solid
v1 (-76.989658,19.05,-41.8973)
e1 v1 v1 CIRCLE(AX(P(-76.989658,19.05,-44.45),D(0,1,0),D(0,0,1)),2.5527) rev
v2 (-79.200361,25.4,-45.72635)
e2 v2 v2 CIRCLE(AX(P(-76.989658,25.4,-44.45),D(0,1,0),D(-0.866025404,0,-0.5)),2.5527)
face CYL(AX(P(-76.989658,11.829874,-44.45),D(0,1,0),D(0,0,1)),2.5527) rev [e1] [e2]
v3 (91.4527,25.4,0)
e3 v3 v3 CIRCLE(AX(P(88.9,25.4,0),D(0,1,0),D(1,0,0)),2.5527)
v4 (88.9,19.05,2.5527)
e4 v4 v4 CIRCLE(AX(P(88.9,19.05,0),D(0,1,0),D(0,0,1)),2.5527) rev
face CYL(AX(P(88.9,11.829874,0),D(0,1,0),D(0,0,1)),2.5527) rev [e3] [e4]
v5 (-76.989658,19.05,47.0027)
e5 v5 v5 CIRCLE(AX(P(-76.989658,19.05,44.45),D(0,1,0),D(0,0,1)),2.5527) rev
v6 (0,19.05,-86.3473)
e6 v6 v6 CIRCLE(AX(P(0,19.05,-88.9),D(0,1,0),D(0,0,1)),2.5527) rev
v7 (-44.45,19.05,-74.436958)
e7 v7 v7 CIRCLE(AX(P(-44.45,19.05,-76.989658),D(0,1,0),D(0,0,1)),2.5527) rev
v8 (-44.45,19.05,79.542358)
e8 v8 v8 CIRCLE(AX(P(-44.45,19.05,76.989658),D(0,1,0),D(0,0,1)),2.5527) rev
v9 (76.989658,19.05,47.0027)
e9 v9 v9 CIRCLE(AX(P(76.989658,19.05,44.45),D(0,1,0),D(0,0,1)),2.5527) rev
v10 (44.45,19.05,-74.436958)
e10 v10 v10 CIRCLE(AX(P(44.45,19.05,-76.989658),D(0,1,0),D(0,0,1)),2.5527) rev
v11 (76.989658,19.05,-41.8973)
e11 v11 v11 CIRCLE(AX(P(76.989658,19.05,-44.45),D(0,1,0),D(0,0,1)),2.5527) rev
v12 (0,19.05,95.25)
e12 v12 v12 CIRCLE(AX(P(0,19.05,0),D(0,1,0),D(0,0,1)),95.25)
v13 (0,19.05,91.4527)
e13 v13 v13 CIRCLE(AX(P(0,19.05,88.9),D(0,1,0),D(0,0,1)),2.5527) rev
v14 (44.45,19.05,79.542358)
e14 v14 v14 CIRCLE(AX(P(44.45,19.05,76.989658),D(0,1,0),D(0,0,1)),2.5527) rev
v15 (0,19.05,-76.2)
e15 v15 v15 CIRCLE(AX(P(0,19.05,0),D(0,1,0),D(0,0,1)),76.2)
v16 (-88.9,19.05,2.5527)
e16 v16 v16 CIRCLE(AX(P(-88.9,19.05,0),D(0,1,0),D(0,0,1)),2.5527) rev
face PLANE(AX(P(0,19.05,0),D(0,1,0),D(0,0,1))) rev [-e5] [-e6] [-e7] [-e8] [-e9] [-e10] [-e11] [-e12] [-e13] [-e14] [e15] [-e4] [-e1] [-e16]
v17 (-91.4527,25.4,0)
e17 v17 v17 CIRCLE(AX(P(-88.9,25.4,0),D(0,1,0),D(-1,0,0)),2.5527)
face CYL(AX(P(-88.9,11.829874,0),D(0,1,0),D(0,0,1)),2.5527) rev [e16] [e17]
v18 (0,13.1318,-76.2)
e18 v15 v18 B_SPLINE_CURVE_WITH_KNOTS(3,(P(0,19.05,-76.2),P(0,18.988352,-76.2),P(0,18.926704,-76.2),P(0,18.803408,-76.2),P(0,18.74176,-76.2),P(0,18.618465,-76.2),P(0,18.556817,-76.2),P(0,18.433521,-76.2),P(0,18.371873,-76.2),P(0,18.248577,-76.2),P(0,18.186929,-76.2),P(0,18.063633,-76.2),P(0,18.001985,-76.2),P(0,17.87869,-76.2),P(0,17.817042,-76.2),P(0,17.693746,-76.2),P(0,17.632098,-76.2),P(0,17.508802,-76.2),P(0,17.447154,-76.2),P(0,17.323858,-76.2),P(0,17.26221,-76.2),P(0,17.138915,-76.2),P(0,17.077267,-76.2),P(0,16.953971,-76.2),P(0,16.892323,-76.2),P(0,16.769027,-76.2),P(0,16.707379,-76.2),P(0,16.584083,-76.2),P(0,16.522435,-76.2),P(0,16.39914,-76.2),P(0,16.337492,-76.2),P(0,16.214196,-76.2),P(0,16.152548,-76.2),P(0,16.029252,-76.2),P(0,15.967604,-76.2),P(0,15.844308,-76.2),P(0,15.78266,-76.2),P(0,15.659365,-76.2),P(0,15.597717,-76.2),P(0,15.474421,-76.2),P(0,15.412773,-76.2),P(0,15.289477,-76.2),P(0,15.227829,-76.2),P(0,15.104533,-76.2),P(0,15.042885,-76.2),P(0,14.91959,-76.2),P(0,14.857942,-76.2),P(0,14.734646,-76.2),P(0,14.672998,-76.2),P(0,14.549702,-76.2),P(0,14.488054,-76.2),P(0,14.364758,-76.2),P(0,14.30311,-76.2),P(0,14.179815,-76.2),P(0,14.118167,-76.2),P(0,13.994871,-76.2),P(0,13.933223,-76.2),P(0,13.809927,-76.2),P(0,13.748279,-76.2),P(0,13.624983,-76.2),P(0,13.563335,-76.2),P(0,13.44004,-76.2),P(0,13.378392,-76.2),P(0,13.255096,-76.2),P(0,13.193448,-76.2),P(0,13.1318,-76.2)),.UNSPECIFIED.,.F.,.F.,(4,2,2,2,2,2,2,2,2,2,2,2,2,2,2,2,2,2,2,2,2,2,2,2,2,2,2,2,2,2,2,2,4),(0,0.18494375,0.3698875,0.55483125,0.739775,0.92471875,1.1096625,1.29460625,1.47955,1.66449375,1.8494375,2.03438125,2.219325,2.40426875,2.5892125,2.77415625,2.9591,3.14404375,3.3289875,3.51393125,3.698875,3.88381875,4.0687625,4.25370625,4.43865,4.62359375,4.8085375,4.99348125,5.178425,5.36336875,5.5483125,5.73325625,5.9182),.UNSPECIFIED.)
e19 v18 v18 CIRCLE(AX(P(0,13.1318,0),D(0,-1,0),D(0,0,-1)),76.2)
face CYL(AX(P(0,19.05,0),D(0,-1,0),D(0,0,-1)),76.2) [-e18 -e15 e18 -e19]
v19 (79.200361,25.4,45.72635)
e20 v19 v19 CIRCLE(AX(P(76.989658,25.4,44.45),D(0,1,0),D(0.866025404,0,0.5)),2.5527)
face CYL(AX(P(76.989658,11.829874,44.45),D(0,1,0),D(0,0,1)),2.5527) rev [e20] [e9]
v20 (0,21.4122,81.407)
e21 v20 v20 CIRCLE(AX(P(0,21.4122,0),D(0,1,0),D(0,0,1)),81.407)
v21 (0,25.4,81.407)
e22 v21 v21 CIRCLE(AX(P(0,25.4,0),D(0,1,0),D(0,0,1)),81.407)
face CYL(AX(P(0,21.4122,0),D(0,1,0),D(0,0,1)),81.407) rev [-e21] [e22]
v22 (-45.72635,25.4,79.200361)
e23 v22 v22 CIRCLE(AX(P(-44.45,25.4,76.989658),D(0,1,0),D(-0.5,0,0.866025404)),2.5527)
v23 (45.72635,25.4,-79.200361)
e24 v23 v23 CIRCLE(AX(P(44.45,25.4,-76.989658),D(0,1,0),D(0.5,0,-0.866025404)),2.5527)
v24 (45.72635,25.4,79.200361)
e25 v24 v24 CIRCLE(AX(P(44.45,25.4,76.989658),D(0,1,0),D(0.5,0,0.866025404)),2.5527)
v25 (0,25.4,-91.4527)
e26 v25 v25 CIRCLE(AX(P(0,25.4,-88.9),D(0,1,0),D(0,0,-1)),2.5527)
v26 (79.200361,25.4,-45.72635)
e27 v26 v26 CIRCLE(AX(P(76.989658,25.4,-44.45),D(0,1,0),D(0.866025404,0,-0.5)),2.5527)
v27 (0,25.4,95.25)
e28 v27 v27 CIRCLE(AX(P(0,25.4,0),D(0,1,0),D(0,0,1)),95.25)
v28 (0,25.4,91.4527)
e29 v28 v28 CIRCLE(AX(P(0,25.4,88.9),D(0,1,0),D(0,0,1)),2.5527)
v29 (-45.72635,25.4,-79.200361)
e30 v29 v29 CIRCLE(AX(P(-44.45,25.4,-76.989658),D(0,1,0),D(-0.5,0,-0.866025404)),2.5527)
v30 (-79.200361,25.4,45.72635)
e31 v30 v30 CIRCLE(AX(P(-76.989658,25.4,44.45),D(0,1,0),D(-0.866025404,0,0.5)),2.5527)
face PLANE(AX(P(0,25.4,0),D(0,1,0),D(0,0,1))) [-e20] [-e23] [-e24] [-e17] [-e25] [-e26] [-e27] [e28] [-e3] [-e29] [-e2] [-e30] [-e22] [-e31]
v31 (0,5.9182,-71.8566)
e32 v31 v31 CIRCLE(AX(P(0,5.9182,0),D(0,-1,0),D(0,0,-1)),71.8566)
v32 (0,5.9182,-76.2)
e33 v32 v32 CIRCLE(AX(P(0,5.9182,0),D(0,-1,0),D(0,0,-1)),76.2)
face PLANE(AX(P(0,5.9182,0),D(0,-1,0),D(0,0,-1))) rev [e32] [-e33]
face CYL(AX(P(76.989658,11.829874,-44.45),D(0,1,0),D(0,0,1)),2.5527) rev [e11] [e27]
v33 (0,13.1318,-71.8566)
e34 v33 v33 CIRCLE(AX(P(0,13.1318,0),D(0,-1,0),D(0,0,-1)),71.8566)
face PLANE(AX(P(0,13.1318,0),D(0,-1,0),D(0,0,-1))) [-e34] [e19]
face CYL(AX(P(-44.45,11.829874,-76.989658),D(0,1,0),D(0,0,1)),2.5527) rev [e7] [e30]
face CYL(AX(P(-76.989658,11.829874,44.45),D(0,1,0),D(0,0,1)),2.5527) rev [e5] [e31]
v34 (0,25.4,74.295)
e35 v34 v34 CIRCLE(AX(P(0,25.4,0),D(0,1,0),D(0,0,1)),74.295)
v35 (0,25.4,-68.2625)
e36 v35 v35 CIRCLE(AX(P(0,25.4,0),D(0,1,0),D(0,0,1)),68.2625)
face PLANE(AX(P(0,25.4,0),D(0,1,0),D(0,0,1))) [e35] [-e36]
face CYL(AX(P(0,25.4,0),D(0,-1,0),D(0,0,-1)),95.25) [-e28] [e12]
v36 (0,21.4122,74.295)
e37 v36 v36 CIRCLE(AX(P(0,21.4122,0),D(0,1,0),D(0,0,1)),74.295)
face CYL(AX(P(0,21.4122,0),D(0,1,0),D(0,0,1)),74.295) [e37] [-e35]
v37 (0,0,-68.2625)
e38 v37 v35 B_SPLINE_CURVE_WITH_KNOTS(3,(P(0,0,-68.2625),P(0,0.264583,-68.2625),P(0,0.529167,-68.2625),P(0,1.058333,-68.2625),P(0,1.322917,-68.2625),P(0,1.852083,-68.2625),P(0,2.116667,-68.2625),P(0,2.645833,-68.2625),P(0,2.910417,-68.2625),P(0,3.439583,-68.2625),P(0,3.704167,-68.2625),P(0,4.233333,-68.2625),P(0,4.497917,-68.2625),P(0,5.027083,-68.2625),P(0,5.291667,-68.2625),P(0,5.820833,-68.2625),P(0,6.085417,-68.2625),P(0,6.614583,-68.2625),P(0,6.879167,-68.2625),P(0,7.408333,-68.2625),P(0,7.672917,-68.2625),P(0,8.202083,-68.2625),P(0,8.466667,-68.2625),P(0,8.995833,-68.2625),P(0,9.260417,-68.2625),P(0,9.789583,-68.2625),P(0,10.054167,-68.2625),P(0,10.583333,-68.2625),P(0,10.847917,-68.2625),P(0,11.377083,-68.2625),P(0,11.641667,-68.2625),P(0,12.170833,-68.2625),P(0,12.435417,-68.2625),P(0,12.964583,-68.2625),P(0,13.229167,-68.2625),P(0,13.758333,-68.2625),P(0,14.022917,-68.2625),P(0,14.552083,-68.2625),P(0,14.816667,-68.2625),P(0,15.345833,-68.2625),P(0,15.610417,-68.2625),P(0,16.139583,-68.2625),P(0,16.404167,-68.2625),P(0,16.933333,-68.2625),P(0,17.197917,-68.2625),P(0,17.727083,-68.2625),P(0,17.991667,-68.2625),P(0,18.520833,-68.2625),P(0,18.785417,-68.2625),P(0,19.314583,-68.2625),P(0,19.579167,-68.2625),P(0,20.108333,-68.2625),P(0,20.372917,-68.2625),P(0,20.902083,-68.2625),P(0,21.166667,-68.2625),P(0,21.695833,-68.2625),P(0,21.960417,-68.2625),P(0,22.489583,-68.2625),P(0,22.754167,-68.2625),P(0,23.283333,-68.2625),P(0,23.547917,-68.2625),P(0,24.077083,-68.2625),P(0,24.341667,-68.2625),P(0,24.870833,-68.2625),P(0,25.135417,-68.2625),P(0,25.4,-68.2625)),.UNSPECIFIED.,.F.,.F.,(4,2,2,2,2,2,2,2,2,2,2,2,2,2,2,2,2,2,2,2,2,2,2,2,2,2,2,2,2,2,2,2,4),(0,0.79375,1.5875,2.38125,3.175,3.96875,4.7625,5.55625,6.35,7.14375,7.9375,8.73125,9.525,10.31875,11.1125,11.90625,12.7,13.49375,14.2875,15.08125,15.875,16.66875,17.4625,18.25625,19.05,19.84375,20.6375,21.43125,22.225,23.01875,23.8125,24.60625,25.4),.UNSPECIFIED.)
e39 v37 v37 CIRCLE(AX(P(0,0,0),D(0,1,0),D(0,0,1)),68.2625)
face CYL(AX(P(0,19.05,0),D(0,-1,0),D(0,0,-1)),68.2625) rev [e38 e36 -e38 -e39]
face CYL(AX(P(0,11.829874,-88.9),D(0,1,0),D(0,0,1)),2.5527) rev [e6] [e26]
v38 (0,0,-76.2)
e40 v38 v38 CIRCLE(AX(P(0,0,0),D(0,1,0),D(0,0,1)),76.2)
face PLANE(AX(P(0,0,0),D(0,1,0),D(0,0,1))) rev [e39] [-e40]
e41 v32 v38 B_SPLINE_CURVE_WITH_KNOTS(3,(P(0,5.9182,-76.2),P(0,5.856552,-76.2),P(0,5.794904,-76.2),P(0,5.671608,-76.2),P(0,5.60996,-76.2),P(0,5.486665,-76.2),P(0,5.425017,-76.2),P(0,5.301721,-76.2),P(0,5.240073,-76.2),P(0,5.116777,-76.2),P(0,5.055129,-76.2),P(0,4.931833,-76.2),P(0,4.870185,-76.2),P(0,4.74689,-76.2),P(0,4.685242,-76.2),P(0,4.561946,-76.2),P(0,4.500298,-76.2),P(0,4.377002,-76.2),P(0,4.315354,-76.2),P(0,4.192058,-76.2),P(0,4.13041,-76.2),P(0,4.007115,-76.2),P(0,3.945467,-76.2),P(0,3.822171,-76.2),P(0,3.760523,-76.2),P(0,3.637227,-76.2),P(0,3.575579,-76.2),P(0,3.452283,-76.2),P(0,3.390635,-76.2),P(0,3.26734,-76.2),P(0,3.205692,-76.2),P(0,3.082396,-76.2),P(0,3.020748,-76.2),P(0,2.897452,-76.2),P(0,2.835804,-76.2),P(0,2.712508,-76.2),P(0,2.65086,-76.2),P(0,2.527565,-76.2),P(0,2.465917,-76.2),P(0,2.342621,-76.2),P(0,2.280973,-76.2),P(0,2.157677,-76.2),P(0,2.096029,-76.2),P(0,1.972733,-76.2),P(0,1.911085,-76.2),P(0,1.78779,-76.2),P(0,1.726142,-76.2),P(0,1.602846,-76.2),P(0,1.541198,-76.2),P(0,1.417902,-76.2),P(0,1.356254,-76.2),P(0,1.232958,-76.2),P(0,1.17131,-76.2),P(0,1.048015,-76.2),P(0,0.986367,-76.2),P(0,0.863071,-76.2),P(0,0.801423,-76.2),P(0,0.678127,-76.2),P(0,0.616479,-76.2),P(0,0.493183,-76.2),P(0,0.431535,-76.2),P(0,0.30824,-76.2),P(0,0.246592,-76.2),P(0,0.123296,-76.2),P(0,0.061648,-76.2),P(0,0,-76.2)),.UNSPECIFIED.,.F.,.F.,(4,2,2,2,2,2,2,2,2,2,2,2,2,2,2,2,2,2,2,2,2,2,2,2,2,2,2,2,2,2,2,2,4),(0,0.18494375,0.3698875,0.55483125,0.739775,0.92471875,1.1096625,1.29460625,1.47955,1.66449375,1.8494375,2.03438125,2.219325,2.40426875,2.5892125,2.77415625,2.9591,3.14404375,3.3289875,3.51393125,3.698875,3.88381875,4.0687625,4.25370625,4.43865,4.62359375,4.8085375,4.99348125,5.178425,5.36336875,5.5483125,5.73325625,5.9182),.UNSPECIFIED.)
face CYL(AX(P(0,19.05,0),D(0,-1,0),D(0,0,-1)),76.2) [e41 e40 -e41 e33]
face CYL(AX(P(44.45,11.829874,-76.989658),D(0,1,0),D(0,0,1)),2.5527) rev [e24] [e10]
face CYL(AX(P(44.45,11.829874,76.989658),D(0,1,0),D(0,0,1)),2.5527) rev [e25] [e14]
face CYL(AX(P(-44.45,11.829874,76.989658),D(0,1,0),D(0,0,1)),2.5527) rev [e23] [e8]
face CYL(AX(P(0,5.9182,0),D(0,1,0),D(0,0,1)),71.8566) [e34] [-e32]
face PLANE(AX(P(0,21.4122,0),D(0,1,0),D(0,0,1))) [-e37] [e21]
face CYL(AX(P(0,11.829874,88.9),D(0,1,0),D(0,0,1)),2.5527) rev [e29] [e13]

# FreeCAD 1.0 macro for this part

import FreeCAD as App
import Part
import Sketcher
Q = App.Units.Quantity

doc = App.newDocument("Part")
params = doc.addObject("Spreadsheet::Sheet", "Params")
for row, (alias, value) in enumerate([
    ("sketch1_diameter", "6 in"),
    ("sketch1_diameter2", "5.375 in"),
    ("pad1_length", "0.75 in"),
    ("sketch2_diameter", "7.5 in"),
    ("sketch2_diameter2", "5.375 in"),
    ("pad2_length", "0.25 in"),
    ("sketch3_diameter", "6.41 in"),
    ("sketch3_diameter2", "5.85 in"),
    ("pocket1_length", "0.157 in"),
    ("sketch4_diameter", "0.201 in"),
    ("pocket2_length", "0.25 in"),
    ("sketch5_diameter", "6 in"),
    ("sketch5_diameter2", "5.658 in"),
    ("pocket3_length", "0.142 in"),
    ("pocket3_length2", "0.142 in"),
], start=1):
    params.set(f"A{row}", alias)
    params.set(f"B{row}", "=" + value)
    params.setAlias(f"B{row}", alias)

body = doc.addObject("PartDesign::Body", "Body")

# Sketch on XZ plane
sketch1 = body.newObject("Sketcher::SketchObject", "Sketch")
sketch1.AttachmentSupport = (doc.getObject("XZ_Plane"), [""])
sketch1.MapMode = "FlatFace"
sketch1.addGeometry([
    Part.Circle(App.Vector(0, 0, 0), App.Vector(0, 0, 1), 76),
    Part.Circle(App.Vector(0, 0, 0), App.Vector(0, 0, 1), 68),
], False)
sketch1.addConstraint([
    Sketcher.Constraint("Coincident", 0, 3, -1, 1),
    Sketcher.Constraint("Coincident", 1, 3, -1, 1),
    Sketcher.Constraint("Diameter", 0, Q("6 in")),
    Sketcher.Constraint("Diameter", 1, Q("5.375 in")),
])
sketch1.setExpression("Constraints[2]", "Params.sketch1_diameter")
sketch1.setExpression("Constraints[3]", "Params.sketch1_diameter2")
pad1 = body.newObject("PartDesign::Pad", "Pad")
pad1.Profile = sketch1
pad1.setExpression("Length", "Params.pad1_length")
pad1.Reversed = True

# Sketch on XZ plane
sketch2 = body.newObject("Sketcher::SketchObject", "Sketch001")
sketch2.AttachmentSupport = (doc.getObject("XZ_Plane"), [""])
sketch2.MapMode = "FlatFace"
sketch2.AttachmentOffset = App.Placement(App.Vector(0, 0, -0.75 * 25.4), App.Rotation())
sketch2.addGeometry([
    Part.Circle(App.Vector(0, 0, 0), App.Vector(0, 0, 1), 95),
    Part.Circle(App.Vector(0, 0, 0), App.Vector(0, 0, 1), 68),
], False)
sketch2.addConstraint([
    Sketcher.Constraint("Coincident", 0, 3, -1, 1),
    Sketcher.Constraint("Coincident", 1, 3, -1, 1),
    Sketcher.Constraint("Diameter", 0, Q("7.5 in")),
    Sketcher.Constraint("Diameter", 1, Q("5.375 in")),
])
sketch2.setExpression("Constraints[2]", "Params.sketch2_diameter")
sketch2.setExpression("Constraints[3]", "Params.sketch2_diameter2")
pad2 = body.newObject("PartDesign::Pad", "Pad001")
pad2.Profile = sketch2
pad2.setExpression("Length", "Params.pad2_length")
pad2.Reversed = True

# Sketch on XZ plane
sketch3 = body.newObject("Sketcher::SketchObject", "Sketch002")
sketch3.AttachmentSupport = (doc.getObject("XZ_Plane"), [""])
sketch3.MapMode = "FlatFace"
sketch3.AttachmentOffset = App.Placement(App.Vector(0, 0, -1 * 25.4), App.Rotation())
sketch3.addGeometry([
    Part.Circle(App.Vector(0, 0, 0), App.Vector(0, 0, 1), 81),
    Part.Circle(App.Vector(0, 0, 0), App.Vector(0, 0, 1), 74),
], False)
sketch3.addConstraint([
    Sketcher.Constraint("Coincident", 0, 3, -1, 1),
    Sketcher.Constraint("Coincident", 1, 3, -1, 1),
    Sketcher.Constraint("Diameter", 0, Q("6.41 in")),
    Sketcher.Constraint("Diameter", 1, Q("5.85 in")),
])
sketch3.setExpression("Constraints[2]", "Params.sketch3_diameter")
sketch3.setExpression("Constraints[3]", "Params.sketch3_diameter2")
pocket1 = body.newObject("PartDesign::Pocket", "Pocket")
pocket1.Profile = sketch3
pocket1.setExpression("Length", "Params.pocket1_length")
pocket1.Reversed = True

# Sketch on XZ plane
sketch4 = body.newObject("Sketcher::SketchObject", "Sketch003")
sketch4.AttachmentSupport = (doc.getObject("XZ_Plane"), [""])
sketch4.MapMode = "FlatFace"
sketch4.AttachmentOffset = App.Placement(App.Vector(0, 0, -1 * 25.4), App.Rotation())
sketch4.addGeometry(Part.Circle(App.Vector(0, 88.9, 0), App.Vector(0, 0, 1), 2.6), False)
sketch4.addConstraint([
    Sketcher.Constraint("PointOnObject", 0, 3, -2),
    Sketcher.Constraint("Diameter", 0, Q("0.201 in")),
    Sketcher.Constraint("DistanceY", -1, 1, 0, 3, Q("3.5 in")),
])
sketch4.setExpression("Constraints[1]", "Params.sketch4_diameter")
pocket2 = body.newObject("PartDesign::Pocket", "Pocket001")
pocket2.Profile = sketch4
pocket2.setExpression("Length", "Params.pocket2_length")
pocket2.Reversed = True
doc.recompute()

polarpattern = body.newObject("PartDesign::PolarPattern", "PolarPattern")
polarpattern.Originals = [pocket2]
polarpattern.Axis = (doc.getObject("Y_Axis"), [""])
polarpattern.Angle = 360
polarpattern.Occurrences = 12
body.Tip = polarpattern

# Sketch on XZ plane
sketch5 = body.newObject("Sketcher::SketchObject", "Sketch004")
sketch5.AttachmentSupport = (doc.getObject("XZ_Plane"), [""])
sketch5.MapMode = "FlatFace"
sketch5.AttachmentOffset = App.Placement(App.Vector(0, 0, -0.375 * 25.4), App.Rotation())
sketch5.addGeometry([
    Part.Circle(App.Vector(0, 0, 0), App.Vector(0, 0, 1), 76),
    Part.Circle(App.Vector(0, 0, 0), App.Vector(0, 0, 1), 72),
], False)
sketch5.addConstraint([
    Sketcher.Constraint("Coincident", 0, 3, -1, 1),
    Sketcher.Constraint("Coincident", 1, 3, -1, 1),
    Sketcher.Constraint("Diameter", 0, Q("6 in")),
    Sketcher.Constraint("Diameter", 1, Q("5.658 in")),
])
sketch5.setExpression("Constraints[2]", "Params.sketch5_diameter")
sketch5.setExpression("Constraints[3]", "Params.sketch5_diameter2")
pocket3 = body.newObject("PartDesign::Pocket", "Pocket002")
pocket3.Profile = sketch5
pocket3.Type = "TwoLengths"
pocket3.setExpression("Length", "Params.pocket3_length")
pocket3.setExpression("Length2", "Params.pocket3_length2")
pocket3.Reversed = True

doc.recompute()
